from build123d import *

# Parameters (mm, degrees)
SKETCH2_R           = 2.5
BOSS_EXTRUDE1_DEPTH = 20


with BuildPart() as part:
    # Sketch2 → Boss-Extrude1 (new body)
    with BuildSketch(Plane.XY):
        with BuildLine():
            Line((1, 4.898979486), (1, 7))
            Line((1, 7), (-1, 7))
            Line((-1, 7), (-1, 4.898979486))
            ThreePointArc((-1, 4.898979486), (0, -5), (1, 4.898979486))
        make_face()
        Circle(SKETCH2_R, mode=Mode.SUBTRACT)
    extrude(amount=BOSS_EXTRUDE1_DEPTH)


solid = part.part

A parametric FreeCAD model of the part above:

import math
import FreeCAD as App
import Part
import Sketcher

V = App.Vector
Q = App.Units.Quantity

doc = App.newDocument("Part")
body = doc.addObject("PartDesign::Body", "Body")

sketch1 = body.newObject("Sketcher::SketchObject", "Sketch")
sketch1.AttachmentSupport = (doc.getObject("XY_Plane"), [""])
sketch1.MapMode = "FlatFace"
sketch1.addGeometry([
    Part.LineSegment(V(1, 4.9, 0), V(1, 7, 0)),
    Part.LineSegment(V(1, 7, 0), V(-1, 7, 0)),
    Part.LineSegment(V(-1, 7, 0), V(-1, 4.9, 0)),
    Part.ArcOfCircle(Part.Circle(V(0, 0, 0), V(0, 0, 1), 5), math.radians(102), math.radians(438)),
    Part.Circle(V(0, 0, 0), V(0, 0, 1), 2.5),
], False)
sketch1.addConstraint([
    Sketcher.Constraint("Coincident", 0, 2, 1, 1),
    Sketcher.Constraint("Coincident", 1, 2, 2, 1),
    Sketcher.Constraint("Coincident", 2, 2, 3, 1),
    Sketcher.Constraint("Coincident", 3, 2, 0, 1),
    Sketcher.Constraint("Vertical", 0),
    Sketcher.Constraint("Horizontal", 1),
    Sketcher.Constraint("Vertical", 2),
    Sketcher.Constraint("Coincident", 3, 3, -1, 1),
    Sketcher.Constraint("Coincident", 4, 3, -1, 1),
    Sketcher.Constraint("Horizontal", 2, 2, 3, 2),
    Sketcher.Constraint("Diameter", 4, Q("5 mm")),
    Sketcher.Constraint("Radius", 3, Q("5 mm")),
    Sketcher.Constraint("DistanceX", 1, 2, 1, 1, Q("2 mm")),
    Sketcher.Constraint("DistanceY", -1, 1, 0, 2, Q("7 mm")),
])
pad1 = body.newObject("PartDesign::Pad", "Pad")
pad1.Profile = sketch1
pad1.Length = 20

doc.recompute()
